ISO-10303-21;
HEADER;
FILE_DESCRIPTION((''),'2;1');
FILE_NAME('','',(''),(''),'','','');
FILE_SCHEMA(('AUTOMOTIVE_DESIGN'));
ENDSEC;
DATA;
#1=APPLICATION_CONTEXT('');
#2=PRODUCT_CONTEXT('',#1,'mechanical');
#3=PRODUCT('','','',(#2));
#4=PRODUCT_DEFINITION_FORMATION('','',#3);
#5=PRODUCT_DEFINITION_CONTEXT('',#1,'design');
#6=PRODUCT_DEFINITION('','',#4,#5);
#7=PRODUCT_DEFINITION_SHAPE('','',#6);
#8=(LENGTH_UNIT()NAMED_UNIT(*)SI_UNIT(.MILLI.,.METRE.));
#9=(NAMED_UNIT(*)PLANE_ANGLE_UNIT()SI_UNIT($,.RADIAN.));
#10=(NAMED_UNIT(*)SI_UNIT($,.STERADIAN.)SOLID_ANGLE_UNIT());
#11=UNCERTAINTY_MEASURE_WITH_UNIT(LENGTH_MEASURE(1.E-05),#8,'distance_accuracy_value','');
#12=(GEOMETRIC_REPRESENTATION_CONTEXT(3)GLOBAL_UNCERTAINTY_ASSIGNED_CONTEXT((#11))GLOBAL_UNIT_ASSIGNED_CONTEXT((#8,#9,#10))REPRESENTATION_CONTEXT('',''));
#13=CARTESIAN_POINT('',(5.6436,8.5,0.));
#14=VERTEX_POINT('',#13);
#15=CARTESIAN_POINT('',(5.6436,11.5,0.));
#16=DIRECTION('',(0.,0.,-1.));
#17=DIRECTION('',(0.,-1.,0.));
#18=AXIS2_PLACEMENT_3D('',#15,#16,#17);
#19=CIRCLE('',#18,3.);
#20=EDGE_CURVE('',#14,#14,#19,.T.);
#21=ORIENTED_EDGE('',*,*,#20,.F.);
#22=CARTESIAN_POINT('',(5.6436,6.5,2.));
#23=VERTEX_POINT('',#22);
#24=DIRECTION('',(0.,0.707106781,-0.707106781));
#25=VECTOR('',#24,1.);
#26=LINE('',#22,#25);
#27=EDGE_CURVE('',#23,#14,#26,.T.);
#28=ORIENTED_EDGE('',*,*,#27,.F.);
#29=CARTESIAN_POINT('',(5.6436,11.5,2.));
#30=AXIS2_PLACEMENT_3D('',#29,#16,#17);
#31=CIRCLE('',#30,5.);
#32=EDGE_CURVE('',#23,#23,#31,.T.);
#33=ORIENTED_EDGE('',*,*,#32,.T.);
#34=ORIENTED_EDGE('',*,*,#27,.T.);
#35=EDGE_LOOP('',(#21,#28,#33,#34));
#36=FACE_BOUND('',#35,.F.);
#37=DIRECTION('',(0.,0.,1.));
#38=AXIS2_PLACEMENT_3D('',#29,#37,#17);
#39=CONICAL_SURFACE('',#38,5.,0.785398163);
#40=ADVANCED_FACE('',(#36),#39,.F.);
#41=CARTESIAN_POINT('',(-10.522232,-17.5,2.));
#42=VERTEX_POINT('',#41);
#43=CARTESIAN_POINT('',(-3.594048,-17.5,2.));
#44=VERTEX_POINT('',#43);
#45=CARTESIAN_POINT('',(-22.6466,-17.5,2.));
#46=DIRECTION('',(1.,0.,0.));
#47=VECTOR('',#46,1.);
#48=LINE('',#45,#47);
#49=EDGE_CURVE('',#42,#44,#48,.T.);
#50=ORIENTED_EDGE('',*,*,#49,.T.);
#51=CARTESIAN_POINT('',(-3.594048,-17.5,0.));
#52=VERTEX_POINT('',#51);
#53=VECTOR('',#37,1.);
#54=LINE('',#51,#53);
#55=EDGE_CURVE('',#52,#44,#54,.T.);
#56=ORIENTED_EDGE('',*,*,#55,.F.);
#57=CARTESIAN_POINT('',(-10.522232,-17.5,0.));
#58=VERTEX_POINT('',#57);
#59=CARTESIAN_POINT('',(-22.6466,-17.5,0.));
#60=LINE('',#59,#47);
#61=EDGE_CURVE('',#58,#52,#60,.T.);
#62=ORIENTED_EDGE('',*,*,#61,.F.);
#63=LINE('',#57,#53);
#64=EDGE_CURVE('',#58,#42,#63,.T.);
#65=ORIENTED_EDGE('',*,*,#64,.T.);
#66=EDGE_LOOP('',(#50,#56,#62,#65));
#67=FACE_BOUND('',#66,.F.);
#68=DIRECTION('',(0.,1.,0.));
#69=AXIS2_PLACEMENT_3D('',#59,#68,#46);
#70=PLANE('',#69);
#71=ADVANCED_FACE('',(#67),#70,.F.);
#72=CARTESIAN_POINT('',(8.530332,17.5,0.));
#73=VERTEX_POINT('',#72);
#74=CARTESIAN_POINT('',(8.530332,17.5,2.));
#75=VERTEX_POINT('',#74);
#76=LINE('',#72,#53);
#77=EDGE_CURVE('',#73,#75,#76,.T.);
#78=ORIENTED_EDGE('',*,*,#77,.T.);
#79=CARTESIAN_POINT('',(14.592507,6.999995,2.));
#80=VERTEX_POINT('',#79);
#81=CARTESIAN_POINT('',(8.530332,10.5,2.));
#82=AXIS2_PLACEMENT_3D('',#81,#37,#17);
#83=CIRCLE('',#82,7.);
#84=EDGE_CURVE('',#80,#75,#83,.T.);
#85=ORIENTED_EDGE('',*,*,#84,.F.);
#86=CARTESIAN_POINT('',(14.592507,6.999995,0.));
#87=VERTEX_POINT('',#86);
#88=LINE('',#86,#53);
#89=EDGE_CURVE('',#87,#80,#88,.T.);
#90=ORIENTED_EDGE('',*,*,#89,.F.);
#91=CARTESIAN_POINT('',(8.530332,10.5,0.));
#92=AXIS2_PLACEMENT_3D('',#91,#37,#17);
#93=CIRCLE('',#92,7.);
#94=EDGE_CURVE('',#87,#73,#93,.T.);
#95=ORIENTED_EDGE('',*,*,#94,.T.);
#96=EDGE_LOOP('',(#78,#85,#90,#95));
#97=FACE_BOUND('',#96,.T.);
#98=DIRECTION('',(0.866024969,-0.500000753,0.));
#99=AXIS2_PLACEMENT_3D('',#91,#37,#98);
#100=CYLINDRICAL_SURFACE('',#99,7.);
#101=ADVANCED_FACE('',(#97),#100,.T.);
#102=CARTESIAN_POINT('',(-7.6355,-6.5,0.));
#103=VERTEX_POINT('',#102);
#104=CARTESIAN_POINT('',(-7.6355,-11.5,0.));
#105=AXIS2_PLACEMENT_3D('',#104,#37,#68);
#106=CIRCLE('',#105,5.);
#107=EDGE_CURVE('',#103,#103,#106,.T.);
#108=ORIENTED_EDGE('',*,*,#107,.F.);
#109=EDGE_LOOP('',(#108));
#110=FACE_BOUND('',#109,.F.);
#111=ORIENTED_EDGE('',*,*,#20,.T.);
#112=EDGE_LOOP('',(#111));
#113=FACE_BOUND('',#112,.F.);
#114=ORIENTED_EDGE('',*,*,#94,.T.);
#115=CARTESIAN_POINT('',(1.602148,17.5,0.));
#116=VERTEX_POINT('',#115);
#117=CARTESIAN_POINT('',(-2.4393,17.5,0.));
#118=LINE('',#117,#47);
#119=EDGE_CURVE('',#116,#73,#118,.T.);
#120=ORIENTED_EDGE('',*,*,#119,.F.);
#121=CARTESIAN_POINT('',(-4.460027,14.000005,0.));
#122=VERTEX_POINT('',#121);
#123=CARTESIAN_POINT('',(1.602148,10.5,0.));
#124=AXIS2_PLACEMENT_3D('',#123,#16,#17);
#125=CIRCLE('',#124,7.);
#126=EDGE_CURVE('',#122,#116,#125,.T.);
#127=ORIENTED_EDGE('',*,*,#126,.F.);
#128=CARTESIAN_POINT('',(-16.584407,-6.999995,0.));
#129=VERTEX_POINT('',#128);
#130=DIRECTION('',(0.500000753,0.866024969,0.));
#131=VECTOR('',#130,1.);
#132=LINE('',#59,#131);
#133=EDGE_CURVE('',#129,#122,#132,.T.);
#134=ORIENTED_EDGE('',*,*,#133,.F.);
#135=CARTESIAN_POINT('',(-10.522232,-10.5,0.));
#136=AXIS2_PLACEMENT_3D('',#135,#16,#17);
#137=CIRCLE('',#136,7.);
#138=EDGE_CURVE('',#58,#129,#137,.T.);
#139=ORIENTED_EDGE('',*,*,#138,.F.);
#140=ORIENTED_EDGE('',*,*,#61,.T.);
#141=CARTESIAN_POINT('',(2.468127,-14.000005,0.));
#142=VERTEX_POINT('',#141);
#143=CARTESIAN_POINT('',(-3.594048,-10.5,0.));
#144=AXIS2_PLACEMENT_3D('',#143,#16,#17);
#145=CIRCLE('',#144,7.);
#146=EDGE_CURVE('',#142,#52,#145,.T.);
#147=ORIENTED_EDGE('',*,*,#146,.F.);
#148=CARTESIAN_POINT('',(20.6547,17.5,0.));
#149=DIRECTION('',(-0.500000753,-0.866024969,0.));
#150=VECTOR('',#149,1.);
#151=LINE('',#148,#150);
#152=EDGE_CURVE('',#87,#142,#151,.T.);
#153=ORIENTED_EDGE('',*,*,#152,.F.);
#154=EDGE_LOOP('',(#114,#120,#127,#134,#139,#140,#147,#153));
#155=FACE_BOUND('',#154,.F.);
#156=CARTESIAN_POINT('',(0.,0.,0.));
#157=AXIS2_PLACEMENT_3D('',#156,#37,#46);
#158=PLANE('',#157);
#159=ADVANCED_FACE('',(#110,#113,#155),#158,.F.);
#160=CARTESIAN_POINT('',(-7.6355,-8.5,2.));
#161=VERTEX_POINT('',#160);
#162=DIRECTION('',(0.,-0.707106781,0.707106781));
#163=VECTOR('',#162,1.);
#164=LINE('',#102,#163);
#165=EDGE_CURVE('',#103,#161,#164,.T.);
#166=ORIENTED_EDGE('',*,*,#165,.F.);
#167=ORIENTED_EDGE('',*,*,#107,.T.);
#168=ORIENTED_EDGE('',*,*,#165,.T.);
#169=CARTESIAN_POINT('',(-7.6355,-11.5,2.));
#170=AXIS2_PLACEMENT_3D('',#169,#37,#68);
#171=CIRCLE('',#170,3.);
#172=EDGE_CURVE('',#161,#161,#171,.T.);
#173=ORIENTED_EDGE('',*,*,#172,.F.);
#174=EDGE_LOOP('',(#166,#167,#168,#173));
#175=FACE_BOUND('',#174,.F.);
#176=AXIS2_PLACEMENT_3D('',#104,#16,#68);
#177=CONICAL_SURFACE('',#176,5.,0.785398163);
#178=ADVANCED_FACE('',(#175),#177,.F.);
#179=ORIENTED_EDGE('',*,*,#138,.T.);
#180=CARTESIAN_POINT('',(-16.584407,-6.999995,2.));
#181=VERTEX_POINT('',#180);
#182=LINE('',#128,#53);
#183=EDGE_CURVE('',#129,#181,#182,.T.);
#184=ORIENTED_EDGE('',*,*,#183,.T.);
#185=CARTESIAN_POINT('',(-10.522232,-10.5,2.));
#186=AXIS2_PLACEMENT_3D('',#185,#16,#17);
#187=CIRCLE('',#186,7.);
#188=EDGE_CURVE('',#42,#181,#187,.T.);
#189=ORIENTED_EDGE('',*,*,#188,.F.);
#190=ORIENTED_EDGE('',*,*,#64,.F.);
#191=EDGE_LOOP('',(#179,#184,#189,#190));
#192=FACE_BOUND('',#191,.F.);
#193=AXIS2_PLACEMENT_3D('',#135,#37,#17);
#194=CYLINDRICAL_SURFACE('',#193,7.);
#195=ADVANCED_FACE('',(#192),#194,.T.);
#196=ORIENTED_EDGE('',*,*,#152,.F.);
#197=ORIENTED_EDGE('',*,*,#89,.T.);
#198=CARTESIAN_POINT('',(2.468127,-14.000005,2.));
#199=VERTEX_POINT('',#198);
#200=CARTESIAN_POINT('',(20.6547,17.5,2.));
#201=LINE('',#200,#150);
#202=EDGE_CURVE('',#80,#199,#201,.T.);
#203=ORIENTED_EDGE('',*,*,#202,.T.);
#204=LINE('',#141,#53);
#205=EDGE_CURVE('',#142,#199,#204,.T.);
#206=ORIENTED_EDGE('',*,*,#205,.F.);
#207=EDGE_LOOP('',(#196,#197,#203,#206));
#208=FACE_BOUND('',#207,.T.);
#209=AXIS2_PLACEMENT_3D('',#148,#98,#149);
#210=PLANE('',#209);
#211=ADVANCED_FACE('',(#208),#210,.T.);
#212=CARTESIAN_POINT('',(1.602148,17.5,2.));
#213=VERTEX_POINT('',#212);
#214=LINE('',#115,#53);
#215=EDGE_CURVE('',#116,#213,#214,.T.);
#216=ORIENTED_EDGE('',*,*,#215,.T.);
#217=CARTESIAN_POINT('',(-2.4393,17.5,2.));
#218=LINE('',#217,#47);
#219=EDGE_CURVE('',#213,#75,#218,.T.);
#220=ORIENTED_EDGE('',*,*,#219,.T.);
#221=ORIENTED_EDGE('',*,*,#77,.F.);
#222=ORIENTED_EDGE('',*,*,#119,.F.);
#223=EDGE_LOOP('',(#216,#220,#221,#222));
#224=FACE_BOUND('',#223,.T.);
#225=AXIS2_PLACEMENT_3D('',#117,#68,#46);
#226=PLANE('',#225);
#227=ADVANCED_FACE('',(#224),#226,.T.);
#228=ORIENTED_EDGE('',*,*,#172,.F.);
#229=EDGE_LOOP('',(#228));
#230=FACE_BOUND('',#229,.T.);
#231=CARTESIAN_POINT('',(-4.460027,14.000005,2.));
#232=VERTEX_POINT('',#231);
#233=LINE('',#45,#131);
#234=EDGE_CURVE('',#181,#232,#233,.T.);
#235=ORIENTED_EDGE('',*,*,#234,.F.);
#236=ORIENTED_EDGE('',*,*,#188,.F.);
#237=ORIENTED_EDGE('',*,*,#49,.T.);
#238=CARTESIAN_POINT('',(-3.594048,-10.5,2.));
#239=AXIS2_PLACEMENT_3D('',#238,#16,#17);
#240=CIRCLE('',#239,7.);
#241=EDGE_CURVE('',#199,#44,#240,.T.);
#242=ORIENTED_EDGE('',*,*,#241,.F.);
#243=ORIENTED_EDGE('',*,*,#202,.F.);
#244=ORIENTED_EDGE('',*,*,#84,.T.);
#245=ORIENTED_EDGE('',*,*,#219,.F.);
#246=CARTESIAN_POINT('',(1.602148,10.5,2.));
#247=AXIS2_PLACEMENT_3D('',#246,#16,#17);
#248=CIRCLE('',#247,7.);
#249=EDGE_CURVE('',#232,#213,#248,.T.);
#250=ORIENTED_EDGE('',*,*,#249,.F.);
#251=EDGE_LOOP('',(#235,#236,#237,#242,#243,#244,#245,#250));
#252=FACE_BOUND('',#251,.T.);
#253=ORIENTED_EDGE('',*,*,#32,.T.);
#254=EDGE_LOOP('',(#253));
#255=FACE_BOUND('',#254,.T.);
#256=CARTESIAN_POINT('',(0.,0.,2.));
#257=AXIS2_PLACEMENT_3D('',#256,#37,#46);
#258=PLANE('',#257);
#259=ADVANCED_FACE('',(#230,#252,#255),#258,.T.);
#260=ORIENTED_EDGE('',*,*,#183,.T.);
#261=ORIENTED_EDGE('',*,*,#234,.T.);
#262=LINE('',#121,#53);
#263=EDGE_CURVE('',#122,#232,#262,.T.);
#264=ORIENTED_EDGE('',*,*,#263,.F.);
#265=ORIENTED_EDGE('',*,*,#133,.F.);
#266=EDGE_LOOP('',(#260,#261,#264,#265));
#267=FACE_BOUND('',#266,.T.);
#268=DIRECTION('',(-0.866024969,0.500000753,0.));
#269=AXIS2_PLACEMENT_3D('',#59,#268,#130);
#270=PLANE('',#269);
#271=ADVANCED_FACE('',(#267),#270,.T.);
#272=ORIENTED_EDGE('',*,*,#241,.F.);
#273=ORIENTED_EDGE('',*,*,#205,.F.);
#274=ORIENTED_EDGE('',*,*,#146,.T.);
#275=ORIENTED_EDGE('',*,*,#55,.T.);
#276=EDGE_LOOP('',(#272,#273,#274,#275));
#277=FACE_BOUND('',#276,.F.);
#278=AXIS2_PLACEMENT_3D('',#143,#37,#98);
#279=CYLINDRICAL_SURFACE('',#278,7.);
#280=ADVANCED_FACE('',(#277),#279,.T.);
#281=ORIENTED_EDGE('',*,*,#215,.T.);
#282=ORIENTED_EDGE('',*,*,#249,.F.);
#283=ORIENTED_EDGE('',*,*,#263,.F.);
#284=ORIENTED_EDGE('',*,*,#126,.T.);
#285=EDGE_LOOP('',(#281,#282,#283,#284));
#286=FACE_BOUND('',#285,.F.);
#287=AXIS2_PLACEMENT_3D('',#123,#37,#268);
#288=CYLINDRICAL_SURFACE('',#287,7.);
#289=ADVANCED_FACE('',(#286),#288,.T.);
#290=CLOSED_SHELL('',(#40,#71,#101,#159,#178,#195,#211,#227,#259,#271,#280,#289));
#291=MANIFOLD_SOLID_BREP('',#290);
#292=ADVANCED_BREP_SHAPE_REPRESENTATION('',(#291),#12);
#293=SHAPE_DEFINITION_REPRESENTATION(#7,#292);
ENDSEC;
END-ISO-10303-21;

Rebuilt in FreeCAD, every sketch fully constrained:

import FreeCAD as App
import Part
import Sketcher
from FreeCAD import Vector
Q = App.Units.Quantity


def edges_at(feature, points):
    """Names of the edges that pass closest to the given points."""
    edges = feature.Shape.Edges
    near = lambda p: min(range(len(edges)), key=lambda i: edges[i].distToShape(Part.Vertex(*p))[0])
    return sorted({f"Edge{near(p) + 1}" for p in points})

doc = App.newDocument("Part")
body = doc.addObject("PartDesign::Body", "Body")

# Sketch on XY plane
sketch1 = doc.addObject("Sketcher::SketchObject", "Sketch")
body.addObject(sketch1)
sketch1.AttachmentSupport = (doc.XY_Plane, [""])
sketch1.MapMode = "FlatFace"
sketch1.addGeometry(Part.LineSegment(Vector(0.4, -17.5, 0), Vector(20.7, 17.5, 0)), False)
sketch1.addGeometry(Part.LineSegment(Vector(20.7, 17.5, 0), Vector(-2.4, 17.5, 0)), False)
sketch1.addGeometry(Part.LineSegment(Vector(-2.4, 17.5, 0), Vector(-22.6, -17.5, 0)), False)
sketch1.addGeometry(Part.LineSegment(Vector(-22.6, -17.5, 0), Vector(0.4, -17.5, 0)), False)
sketch1.addGeometry(Part.Circle(Vector(-7.6, -11.5, 0), Vector(0, 0, 1), 2.5), False)
sketch1.addGeometry(Part.Circle(Vector(5.6, 11.5, 0), Vector(0, 0, 1), 2.5), False)
sketch1.addConstraint(Sketcher.Constraint("Coincident", 0, 2, 1, 1))
sketch1.addConstraint(Sketcher.Constraint("Coincident", 1, 2, 2, 1))
sketch1.addConstraint(Sketcher.Constraint("Coincident", 2, 2, 3, 1))
sketch1.addConstraint(Sketcher.Constraint("Coincident", 3, 2, 0, 1))
sketch1.addConstraint(Sketcher.Constraint("Horizontal", 1))
sketch1.addConstraint(Sketcher.Constraint("Horizontal", 3))
sketch1.addConstraint(Sketcher.Constraint("Equal", 4, 5))
sketch1.addConstraint(Sketcher.Constraint("Parallel", 0, 2))
sketch1.addConstraint(Sketcher.Constraint("Diameter", 4, 5.0))
sketch1.addConstraint(Sketcher.Constraint("Angle", 0, Q("60 deg")))
sketch1.addConstraint(Sketcher.Constraint("DistanceY", 5, 3, 0, 2, 6.0))
sketch1.addConstraint(Sketcher.Constraint("DistanceY", 2, 2, 4, 3, 6.0))
sketch1.addConstraint(Sketcher.Constraint("DistanceY", 2, 2, 1, 2, 35.0))
sketch1.addConstraint(Sketcher.Constraint("DistanceY", 4, 3, -1, 1, 11.5))
sketch1.addConstraint(Sketcher.Constraint("DistanceX", 1, 2, -1, 1, 2.4393))
sketch1.addConstraint(Sketcher.Constraint("DistanceX", 1, 2, 1, 1, 23.094))
sketch1.addConstraint(Sketcher.Constraint("DistanceX", 4, 3, 5, 3, 13.279))
sketch1.addConstraint(Sketcher.Constraint("DistanceX", 5, 3, 0, 2, 15.011))
pad1 = doc.addObject("PartDesign::Pad", "Pad")
body.addObject(pad1)
pad1.Profile = sketch1
pad1.Length = 2
doc.recompute()

fillet = doc.addObject("PartDesign::Fillet", "Fillet")
body.addObject(fillet)
fillet.Base = (pad1, edges_at(pad1, [
    (20.655, 17.5, 1),
    (-2.439, 17.5, 1),
    (0.447, -17.5, 1),
    (-22.647, -17.5, 1),
]))
fillet.Radius = 7

# Sketch on XY plane
sketch2 = doc.addObject("Sketcher::SketchObject", "Sketch001")
body.addObject(sketch2)
sketch2.AttachmentSupport = (doc.XY_Plane, [""])
sketch2.MapMode = "FlatFace"
sketch2.addGeometry(Part.Circle(Vector(-7.6, -11.5, 0), Vector(0, 0, 1), 2.1), False)
sketch2.addConstraint(Sketcher.Constraint("Diameter", 0, 4.134))
sketch2.addConstraint(Sketcher.Constraint("DistanceY", 0, 3, -1, 1, 11.5))
sketch2.addConstraint(Sketcher.Constraint("DistanceX", 0, 3, -1, 1, 7.6355))
doc.recompute()
hole = doc.addObject("PartDesign::Hole", "Hole")
body.addObject(hole)
hole.Profile = sketch2
hole.ThreadType = "None"
hole.Diameter = 4.134
hole.DepthType = "Dimension"
hole.Depth = 14.2
hole.DrillPoint = "Angled"
hole.DrillPointAngle = 118
hole.HoleCutType = "Countersink"
hole.HoleCutDiameter = 10
hole.HoleCutCountersinkAngle = 90
hole.Reversed = True

# Sketch on XY plane
sketch3 = doc.addObject("Sketcher::SketchObject", "Sketch002")
body.addObject(sketch3)
sketch3.AttachmentSupport = (doc.XY_Plane, [""])
sketch3.MapMode = "FlatFace"
sketch3.AttachmentOffset = App.Placement(Vector(0, 0, 2), App.Rotation())
sketch3.addGeometry(Part.Circle(Vector(5.6, 11.5, 0), Vector(0, 0, 1), 2.5), False)
sketch3.addConstraint(Sketcher.Constraint("Diameter", 0, 5.0))
sketch3.addConstraint(Sketcher.Constraint("DistanceY", -1, 1, 0, 3, 11.5))
sketch3.addConstraint(Sketcher.Constraint("DistanceX", -1, 1, 0, 3, 5.6436))
doc.recompute()
hole2 = doc.addObject("PartDesign::Hole", "Hole001")
body.addObject(hole2)
hole2.Profile = sketch3
hole2.ThreadType = "None"
hole2.Diameter = 5
hole2.DepthType = "Dimension"
hole2.Depth = 14.2
hole2.DrillPoint = "Angled"
hole2.DrillPointAngle = 118
hole2.HoleCutType = "Countersink"
hole2.HoleCutDiameter = 10
hole2.HoleCutCountersinkAngle = 90

doc.recompute()
